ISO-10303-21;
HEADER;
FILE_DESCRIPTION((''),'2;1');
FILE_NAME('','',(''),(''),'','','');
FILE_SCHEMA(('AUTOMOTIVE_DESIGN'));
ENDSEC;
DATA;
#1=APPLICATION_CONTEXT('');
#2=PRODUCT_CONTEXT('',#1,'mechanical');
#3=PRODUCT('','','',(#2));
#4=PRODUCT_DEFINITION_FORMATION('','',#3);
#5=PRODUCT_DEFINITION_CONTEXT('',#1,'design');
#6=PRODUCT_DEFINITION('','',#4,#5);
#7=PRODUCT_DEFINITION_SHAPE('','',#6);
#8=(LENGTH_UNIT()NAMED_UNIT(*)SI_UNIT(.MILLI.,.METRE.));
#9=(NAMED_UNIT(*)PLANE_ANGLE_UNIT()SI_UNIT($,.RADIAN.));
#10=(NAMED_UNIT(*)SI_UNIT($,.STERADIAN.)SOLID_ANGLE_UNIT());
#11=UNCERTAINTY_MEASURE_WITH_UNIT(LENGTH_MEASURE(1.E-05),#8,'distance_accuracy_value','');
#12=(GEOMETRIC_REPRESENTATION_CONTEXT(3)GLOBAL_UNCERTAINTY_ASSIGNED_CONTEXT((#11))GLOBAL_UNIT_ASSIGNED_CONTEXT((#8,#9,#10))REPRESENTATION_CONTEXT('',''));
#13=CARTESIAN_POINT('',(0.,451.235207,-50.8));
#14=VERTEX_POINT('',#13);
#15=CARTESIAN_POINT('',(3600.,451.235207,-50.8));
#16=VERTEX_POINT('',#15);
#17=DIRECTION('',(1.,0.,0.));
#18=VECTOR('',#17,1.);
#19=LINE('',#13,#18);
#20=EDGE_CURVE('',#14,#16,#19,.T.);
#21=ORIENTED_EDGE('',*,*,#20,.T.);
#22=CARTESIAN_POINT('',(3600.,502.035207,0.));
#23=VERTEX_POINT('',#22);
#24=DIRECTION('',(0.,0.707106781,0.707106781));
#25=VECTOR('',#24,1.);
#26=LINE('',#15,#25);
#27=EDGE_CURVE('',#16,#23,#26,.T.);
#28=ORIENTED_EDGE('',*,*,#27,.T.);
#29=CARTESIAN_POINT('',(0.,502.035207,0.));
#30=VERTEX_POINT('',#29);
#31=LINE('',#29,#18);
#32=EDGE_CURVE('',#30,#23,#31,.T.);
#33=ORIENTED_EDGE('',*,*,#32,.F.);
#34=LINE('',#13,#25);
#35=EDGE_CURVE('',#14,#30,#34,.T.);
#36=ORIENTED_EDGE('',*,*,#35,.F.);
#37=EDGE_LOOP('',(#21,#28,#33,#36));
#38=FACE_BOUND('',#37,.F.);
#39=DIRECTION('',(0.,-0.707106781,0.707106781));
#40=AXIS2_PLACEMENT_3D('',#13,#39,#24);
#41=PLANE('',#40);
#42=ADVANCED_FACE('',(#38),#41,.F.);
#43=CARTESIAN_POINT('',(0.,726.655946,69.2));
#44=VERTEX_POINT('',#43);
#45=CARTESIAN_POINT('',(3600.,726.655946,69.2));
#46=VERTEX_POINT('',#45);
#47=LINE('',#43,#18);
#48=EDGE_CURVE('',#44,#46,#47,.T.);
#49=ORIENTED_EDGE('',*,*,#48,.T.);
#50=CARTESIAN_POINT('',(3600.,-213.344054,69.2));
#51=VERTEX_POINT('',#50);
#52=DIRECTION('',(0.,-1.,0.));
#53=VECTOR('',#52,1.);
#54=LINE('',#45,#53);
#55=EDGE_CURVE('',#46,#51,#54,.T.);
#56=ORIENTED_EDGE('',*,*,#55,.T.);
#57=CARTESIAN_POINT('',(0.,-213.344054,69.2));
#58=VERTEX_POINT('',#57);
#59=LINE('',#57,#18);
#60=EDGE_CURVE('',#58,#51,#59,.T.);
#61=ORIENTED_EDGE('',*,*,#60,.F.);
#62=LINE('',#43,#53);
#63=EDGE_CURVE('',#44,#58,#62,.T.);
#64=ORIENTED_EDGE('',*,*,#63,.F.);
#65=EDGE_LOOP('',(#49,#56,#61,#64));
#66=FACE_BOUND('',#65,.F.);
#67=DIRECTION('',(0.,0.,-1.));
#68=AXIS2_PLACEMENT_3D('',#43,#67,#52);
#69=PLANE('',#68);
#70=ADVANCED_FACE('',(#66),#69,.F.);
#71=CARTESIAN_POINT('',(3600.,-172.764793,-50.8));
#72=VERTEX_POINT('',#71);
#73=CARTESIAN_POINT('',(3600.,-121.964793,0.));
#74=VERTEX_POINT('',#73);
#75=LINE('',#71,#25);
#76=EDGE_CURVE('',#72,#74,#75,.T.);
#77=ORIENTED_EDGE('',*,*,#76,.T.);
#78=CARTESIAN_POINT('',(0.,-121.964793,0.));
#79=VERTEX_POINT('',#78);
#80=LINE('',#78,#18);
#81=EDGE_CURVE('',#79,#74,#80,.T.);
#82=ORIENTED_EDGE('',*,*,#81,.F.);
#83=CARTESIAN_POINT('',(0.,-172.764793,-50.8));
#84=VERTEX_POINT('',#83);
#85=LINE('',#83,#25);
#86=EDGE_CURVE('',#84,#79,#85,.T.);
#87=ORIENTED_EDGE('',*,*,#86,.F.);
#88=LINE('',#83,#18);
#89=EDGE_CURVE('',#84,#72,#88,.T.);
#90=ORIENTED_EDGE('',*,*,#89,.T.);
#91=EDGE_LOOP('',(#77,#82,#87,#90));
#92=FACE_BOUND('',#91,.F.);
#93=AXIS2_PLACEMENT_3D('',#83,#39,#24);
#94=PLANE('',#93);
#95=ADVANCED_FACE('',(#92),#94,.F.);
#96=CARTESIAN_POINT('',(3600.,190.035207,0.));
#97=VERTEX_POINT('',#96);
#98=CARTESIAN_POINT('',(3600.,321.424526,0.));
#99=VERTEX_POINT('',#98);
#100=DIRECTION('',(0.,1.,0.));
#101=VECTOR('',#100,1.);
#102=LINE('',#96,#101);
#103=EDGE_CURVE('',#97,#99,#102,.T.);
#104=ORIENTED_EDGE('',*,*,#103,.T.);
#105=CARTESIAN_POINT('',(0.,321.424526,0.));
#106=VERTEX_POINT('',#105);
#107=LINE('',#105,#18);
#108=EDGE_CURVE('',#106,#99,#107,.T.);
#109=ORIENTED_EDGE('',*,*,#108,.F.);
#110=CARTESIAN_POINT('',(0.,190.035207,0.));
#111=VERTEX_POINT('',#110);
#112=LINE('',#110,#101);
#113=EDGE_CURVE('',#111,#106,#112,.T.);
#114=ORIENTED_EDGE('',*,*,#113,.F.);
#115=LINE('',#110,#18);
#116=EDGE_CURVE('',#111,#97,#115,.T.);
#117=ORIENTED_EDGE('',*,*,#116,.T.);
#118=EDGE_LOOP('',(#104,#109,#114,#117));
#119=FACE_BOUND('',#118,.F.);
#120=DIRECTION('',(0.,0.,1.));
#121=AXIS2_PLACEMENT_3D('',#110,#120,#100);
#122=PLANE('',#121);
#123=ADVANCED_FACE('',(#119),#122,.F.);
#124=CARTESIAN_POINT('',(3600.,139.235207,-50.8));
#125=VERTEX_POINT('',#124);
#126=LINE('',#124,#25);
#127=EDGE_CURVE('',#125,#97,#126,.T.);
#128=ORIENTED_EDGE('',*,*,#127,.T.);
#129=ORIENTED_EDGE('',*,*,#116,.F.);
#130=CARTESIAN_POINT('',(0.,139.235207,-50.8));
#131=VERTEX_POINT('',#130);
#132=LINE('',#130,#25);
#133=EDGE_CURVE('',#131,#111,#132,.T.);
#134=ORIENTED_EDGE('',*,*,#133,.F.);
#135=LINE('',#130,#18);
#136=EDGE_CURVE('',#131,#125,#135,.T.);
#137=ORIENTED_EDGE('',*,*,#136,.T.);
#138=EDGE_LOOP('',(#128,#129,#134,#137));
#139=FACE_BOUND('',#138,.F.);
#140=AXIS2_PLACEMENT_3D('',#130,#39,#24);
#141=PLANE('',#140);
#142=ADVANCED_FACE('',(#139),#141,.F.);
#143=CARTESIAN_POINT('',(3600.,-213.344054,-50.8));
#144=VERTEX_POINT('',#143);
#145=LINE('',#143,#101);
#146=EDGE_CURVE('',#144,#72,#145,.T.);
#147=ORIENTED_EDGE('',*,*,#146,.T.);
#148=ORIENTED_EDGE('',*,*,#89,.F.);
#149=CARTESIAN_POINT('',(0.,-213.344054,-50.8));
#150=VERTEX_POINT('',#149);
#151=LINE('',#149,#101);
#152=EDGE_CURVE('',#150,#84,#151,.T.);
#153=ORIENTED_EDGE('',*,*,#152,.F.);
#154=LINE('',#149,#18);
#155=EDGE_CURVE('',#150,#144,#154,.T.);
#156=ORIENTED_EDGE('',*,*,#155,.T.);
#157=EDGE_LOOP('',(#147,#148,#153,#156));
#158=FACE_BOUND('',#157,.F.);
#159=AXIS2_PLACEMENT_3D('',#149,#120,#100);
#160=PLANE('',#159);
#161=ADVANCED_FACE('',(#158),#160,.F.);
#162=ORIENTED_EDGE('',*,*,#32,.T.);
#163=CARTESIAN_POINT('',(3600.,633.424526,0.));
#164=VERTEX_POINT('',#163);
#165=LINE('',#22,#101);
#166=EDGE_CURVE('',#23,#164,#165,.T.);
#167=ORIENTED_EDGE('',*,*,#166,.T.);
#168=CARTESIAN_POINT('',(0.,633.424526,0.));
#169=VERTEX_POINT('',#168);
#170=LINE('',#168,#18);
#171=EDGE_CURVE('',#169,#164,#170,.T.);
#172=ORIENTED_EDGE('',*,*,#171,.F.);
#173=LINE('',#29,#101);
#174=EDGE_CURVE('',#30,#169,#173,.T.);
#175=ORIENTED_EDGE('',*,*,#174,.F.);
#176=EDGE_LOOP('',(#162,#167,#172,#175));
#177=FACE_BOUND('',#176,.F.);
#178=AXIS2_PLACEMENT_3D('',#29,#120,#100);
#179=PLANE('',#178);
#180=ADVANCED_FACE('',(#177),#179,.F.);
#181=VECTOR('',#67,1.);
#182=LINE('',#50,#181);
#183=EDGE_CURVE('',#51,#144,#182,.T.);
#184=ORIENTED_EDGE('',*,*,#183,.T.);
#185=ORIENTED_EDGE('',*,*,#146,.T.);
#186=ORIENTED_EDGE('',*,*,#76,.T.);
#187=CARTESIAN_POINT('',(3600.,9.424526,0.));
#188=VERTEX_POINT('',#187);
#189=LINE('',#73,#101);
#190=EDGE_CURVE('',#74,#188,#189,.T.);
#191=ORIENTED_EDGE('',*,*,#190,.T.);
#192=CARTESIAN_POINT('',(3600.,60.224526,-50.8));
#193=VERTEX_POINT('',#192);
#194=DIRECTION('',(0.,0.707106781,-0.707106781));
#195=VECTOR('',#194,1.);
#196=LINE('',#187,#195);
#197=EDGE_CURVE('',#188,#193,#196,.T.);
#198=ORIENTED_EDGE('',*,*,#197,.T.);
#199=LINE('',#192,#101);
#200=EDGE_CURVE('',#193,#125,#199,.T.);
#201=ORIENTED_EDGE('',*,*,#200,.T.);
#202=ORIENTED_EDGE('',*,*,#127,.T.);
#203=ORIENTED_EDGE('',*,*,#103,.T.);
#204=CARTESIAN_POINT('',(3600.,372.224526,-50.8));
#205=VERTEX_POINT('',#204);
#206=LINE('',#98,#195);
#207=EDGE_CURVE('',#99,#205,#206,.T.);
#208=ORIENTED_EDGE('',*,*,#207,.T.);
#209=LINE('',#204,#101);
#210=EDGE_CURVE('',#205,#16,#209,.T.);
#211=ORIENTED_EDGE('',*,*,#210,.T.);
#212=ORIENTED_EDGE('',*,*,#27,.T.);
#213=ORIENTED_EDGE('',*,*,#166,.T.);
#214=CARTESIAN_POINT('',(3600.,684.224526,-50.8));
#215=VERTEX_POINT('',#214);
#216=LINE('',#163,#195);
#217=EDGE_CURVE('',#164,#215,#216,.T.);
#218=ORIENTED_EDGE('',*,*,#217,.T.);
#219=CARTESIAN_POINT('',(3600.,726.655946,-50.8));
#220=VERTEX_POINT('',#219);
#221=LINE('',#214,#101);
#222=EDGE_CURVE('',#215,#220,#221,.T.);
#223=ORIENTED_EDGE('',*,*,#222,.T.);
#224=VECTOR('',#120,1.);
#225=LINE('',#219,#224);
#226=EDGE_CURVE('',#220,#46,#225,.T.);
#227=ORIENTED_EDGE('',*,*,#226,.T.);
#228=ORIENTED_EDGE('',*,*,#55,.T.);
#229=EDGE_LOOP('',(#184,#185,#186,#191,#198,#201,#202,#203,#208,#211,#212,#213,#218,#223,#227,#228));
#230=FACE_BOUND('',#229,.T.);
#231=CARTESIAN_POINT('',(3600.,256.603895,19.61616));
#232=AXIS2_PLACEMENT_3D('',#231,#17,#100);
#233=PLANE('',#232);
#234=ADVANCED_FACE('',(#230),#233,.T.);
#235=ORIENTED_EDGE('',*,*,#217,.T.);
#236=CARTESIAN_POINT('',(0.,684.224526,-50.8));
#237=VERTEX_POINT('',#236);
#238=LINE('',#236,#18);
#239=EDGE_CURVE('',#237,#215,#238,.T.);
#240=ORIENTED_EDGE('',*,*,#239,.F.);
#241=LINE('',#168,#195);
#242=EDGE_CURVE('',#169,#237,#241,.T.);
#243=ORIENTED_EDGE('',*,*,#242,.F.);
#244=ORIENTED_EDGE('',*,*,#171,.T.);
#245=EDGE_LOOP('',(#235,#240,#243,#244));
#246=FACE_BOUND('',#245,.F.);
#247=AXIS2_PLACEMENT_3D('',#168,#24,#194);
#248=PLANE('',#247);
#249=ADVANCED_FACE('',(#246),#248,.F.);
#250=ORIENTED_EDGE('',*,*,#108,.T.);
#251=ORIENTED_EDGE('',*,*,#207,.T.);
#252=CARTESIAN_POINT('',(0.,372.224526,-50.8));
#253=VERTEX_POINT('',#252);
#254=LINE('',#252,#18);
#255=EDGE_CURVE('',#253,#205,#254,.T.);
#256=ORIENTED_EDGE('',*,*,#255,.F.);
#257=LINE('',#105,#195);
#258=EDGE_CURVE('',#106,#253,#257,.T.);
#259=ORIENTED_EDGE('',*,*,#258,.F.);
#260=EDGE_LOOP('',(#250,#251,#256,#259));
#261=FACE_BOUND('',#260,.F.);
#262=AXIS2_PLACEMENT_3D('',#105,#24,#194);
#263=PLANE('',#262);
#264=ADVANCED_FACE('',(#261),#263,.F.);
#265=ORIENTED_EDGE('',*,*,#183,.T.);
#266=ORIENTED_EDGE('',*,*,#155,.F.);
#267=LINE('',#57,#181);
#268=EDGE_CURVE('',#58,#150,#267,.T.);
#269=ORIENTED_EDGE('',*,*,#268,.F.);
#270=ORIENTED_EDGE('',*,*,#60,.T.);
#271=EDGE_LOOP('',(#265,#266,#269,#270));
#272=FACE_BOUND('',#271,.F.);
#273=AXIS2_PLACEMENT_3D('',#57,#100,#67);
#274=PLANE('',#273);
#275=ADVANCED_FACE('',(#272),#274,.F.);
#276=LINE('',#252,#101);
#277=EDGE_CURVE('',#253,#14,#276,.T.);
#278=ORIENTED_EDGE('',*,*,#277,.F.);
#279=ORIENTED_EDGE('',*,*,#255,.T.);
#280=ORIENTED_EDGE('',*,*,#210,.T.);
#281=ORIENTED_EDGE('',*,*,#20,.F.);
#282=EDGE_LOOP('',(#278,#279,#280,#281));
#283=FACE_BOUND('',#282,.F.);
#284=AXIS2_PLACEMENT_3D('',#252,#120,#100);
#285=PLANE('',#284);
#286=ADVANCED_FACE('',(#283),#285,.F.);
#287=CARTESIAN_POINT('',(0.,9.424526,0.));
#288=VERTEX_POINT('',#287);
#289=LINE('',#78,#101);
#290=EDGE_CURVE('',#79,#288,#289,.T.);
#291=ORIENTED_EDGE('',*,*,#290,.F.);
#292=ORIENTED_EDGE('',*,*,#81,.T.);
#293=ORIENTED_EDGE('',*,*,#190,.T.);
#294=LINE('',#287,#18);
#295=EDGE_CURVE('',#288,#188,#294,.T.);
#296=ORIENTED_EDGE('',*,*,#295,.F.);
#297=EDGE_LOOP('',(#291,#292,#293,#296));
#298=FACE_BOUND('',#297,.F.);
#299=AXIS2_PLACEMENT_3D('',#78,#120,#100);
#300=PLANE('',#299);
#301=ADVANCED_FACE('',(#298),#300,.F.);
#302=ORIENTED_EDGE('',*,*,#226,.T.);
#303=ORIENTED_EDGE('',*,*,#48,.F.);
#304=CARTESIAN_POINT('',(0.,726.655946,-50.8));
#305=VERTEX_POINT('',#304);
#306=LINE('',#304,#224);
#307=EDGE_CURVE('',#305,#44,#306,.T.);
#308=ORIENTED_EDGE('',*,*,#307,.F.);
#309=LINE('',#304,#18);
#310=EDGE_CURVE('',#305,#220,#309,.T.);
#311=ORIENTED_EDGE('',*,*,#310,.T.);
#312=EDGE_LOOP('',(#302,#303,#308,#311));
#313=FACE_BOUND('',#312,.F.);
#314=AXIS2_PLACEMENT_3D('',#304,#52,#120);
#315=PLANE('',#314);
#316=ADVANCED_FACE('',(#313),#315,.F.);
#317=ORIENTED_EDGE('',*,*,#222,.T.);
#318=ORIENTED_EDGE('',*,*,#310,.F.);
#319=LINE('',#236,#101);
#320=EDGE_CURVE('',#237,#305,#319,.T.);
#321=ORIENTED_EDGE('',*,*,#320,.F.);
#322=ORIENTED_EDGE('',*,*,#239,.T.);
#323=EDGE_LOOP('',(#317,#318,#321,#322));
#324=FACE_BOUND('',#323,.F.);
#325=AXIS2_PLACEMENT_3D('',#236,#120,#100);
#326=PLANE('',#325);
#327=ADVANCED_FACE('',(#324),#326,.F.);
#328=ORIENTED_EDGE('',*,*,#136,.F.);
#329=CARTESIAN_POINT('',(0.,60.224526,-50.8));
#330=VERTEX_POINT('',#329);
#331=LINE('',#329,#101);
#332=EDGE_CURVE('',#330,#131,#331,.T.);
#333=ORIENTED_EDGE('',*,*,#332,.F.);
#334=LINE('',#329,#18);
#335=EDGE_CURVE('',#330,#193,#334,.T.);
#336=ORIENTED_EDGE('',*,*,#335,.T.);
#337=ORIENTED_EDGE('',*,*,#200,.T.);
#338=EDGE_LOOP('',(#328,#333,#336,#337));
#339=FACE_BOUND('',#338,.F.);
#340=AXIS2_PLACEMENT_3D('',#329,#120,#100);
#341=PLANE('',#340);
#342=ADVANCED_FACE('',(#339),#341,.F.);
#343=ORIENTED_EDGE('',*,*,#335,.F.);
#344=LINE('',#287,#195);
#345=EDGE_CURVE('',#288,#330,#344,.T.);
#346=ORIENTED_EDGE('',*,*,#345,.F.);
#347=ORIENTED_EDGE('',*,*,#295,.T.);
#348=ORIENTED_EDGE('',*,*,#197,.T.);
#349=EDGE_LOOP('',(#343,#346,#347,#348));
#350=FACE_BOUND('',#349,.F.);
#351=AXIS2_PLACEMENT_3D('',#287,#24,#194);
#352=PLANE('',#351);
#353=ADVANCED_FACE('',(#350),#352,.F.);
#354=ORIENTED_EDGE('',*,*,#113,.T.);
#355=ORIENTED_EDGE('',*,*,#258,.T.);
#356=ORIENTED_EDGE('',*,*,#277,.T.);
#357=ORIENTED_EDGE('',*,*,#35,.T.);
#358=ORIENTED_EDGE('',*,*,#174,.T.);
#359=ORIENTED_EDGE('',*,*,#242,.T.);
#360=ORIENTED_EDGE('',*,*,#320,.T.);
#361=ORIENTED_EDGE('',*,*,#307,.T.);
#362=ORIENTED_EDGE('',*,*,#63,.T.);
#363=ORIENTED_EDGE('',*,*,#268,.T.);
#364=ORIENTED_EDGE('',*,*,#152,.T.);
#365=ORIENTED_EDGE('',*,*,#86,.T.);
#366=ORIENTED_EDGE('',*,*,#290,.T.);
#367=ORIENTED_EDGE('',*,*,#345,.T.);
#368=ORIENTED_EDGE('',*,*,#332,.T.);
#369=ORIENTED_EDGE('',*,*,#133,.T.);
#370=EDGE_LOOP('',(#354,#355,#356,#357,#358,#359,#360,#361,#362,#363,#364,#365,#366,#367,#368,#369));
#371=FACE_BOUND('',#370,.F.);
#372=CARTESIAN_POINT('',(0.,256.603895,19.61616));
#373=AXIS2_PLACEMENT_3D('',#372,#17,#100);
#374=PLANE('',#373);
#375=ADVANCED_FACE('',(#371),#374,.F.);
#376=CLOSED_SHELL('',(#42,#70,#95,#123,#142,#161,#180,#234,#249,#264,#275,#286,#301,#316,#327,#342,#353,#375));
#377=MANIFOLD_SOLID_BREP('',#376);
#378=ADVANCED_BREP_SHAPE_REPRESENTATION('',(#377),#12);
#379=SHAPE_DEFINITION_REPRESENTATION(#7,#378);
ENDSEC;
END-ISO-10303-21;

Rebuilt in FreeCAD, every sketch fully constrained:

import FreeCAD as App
import Part
import Sketcher
from FreeCAD import Vector
Q = App.Units.Quantity

doc = App.newDocument("Part")
body = doc.addObject("PartDesign::Body", "Body")

sketch1 = body.newObject("Sketcher::SketchObject", "Sketch")
sketch1.AttachmentSupport = (doc.getObject("YZ_Plane"), [""])
sketch1.MapMode = "FlatFace"
sketch1.addGeometry([
    Part.LineSegment(Vector(-213, 69, 0), Vector(-213, -51, 0)),
    Part.LineSegment(Vector(-213, -51, 0), Vector(-173, -51, 0)),
    Part.LineSegment(Vector(-173, -51, 0), Vector(-122, 0, 0)),
    Part.LineSegment(Vector(-122, 0, 0), Vector(9, 0, 0)),
    Part.LineSegment(Vector(9, 0, 0), Vector(60, -51, 0)),
    Part.LineSegment(Vector(60, -51, 0), Vector(139, -51, 0)),
    Part.LineSegment(Vector(139, -51, 0), Vector(190, 0, 0)),
    Part.LineSegment(Vector(190, 0, 0), Vector(321, 0, 0)),
    Part.LineSegment(Vector(321, 0, 0), Vector(372, -51, 0)),
    Part.LineSegment(Vector(372, -51, 0), Vector(451, -51, 0)),
    Part.LineSegment(Vector(451, -51, 0), Vector(502, 0, 0)),
    Part.LineSegment(Vector(502, 0, 0), Vector(633, 0, 0)),
    Part.LineSegment(Vector(633, 0, 0), Vector(684, -51, 0)),
    Part.LineSegment(Vector(684, -51, 0), Vector(727, -51, 0)),
    Part.LineSegment(Vector(727, -51, 0), Vector(727, 69, 0)),
    Part.LineSegment(Vector(727, 69, 0), Vector(-213, 69, 0)),
], False)
sketch1.addConstraint([
    Sketcher.Constraint("Coincident", 0, 2, 1, 1),
    Sketcher.Constraint("Coincident", 1, 2, 2, 1),
    Sketcher.Constraint("Coincident", 2, 2, 3, 1),
    Sketcher.Constraint("Coincident", 3, 2, 4, 1),
    Sketcher.Constraint("Coincident", 4, 2, 5, 1),
    Sketcher.Constraint("Coincident", 5, 2, 6, 1),
    Sketcher.Constraint("Coincident", 6, 2, 7, 1),
    Sketcher.Constraint("Coincident", 7, 2, 8, 1),
    Sketcher.Constraint("Coincident", 8, 2, 9, 1),
    Sketcher.Constraint("Coincident", 9, 2, 10, 1),
    Sketcher.Constraint("Coincident", 10, 2, 11, 1),
    Sketcher.Constraint("Coincident", 11, 2, 12, 1),
    Sketcher.Constraint("Coincident", 12, 2, 13, 1),
    Sketcher.Constraint("Coincident", 13, 2, 14, 1),
    Sketcher.Constraint("Coincident", 14, 2, 15, 1),
    Sketcher.Constraint("Coincident", 15, 2, 0, 1),
    Sketcher.Constraint("Vertical", 0),
    Sketcher.Constraint("Horizontal", 1),
    Sketcher.Constraint("Horizontal", 3),
    Sketcher.Constraint("Horizontal", 5),
    Sketcher.Constraint("Horizontal", 7),
    Sketcher.Constraint("Horizontal", 9),
    Sketcher.Constraint("Horizontal", 11),
    Sketcher.Constraint("Horizontal", 13),
    Sketcher.Constraint("Vertical", 14),
    Sketcher.Constraint("Horizontal", 15),
    Sketcher.Constraint("PointOnObject", 2, 2, -1),
    Sketcher.Constraint("PointOnObject", 6, 2, -1),
    Sketcher.Constraint("PointOnObject", 10, 2, -1),
    Sketcher.Constraint("Perpendicular", 2, 4),
    Sketcher.Constraint("Perpendicular", 4, 6),
    Sketcher.Constraint("Perpendicular", 6, 8),
    Sketcher.Constraint("Perpendicular", 8, 10),
    Sketcher.Constraint("Perpendicular", 10, 12),
    Sketcher.Constraint("Horizontal", 1, 2, 4, 2),
    Sketcher.Constraint("Horizontal", 5, 2, 8, 2),
    Sketcher.Constraint("Horizontal", 9, 2, 12, 2),
    Sketcher.Constraint("Equal", 3, 7),
    Sketcher.Constraint("Equal", 5, 9),
    Sketcher.Constraint("Equal", 7, 11),
    Sketcher.Constraint("Equal", 2, 4),
    Sketcher.Constraint("DistanceX", 15, 2, 15, 1, Q("940 mm")),
    Sketcher.Constraint("DistanceY", 0, 2, 0, 1, Q("120 mm")),
    Sketcher.Constraint("DistanceX", 1, 2, 5, 2, Q("312 mm")),
    Sketcher.Constraint("DistanceY", 0, 2, -1, 1, Q("50.8 mm")),
    Sketcher.Constraint("DistanceX", 1, 1, 1, 2, Q("40.579261 mm")),
    Sketcher.Constraint("DistanceX", 3, 1, 3, 2, Q("131.389319 mm")),
    Sketcher.Constraint("DistanceX", 0, 2, -1, 1, Q("213.344054 mm")),
])
pad1 = body.newObject("PartDesign::Pad", "Pad")
pad1.Profile = sketch1
pad1.Length = 3600

doc.recompute()
